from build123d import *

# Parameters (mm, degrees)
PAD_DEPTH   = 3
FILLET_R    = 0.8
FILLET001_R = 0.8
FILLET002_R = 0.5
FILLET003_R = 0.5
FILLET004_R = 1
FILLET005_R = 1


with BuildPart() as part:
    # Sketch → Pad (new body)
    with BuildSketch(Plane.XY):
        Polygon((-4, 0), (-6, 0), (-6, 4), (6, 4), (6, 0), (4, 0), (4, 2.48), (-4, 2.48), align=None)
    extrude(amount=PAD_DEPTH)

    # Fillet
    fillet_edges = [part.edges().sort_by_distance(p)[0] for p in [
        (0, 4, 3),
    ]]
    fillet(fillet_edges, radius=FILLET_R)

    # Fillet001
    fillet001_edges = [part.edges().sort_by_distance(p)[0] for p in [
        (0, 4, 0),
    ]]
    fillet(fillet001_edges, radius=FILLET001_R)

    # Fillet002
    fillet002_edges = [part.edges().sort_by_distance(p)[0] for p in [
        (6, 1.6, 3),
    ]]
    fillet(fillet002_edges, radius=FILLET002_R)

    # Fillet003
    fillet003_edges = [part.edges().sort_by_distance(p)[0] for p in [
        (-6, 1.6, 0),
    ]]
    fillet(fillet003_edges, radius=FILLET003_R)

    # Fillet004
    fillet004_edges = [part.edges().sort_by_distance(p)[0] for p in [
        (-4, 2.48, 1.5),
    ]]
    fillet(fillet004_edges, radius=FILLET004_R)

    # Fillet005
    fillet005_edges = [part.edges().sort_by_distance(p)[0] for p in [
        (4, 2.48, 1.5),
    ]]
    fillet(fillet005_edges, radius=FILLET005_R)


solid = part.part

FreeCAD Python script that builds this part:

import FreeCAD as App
import Part
import Sketcher

V = App.Vector


def edges_at(feature, points):
    """Names of the edges that pass closest to the given points."""
    edges = feature.Shape.Edges
    near = lambda p: min(range(len(edges)), key=lambda i: edges[i].distToShape(Part.Vertex(*p))[0])
    return sorted({f"Edge{near(p) + 1}" for p in points})


def add_polygon(sketch, points):
    """Adds a closed chain of lines whose ends are joined by coincident constraints."""
    first, n = sketch.GeometryCount, len(points)
    for a, b in zip(points, points[1:] + points[:1]):
        sketch.addGeometry(Part.LineSegment(App.Vector(*a, 0), App.Vector(*b, 0)), False)
    for i in range(n):
        sketch.addConstraint(Sketcher.Constraint("Coincident", first + i, 2, first + (i + 1) % n, 1))

doc = App.newDocument("Part")
params = doc.addObject("Spreadsheet::Sheet", "Params")
for row, (alias, value) in enumerate([
    ("sketch1_width", "2 mm"),
    ("sketch1_width2", "8 mm"),
    ("sketch1_height", "4 mm"),
    ("sketch1_height2", "2.48 mm"),
    ("pad1_length", "3 mm"),
    ("fillet_radius", "0.8 mm"),
    ("fillet2_radius", "0.8 mm"),
    ("fillet3_radius", "0.5 mm"),
    ("fillet4_radius", "0.5 mm"),
    ("fillet5_radius", "1 mm"),
    ("fillet6_radius", "1 mm"),
], start=1):
    params.set(f"A{row}", alias)
    params.set(f"B{row}", "=" + value)
    params.setAlias(f"B{row}", alias)

body = doc.addObject("PartDesign::Body", "Body")

# Sketch on XY plane
sketch1 = body.newObject("Sketcher::SketchObject", "Sketch")
sketch1.AttachmentSupport = (doc.getObject("XY_Plane"), [""])
sketch1.MapMode = "FlatFace"
add_polygon(sketch1, [(-6, 0), (-4, 0), (-4, 2.5), (4, 2.5), (4, 0), (6, 0), (6, 4), (-6, 4)])  # lines 0-7
sketch1.addConstraint([
    Sketcher.Constraint("Horizontal", 0),
    Sketcher.Constraint("Vertical", 1),
    Sketcher.Constraint("Horizontal", 2),
    Sketcher.Constraint("Vertical", 3),
    Sketcher.Constraint("Horizontal", 4),
    Sketcher.Constraint("Vertical", 5),
    Sketcher.Constraint("Horizontal", 6),
    Sketcher.Constraint("Vertical", 7),
    Sketcher.Constraint("Symmetric", 0, 2, 3, 2, -1, 1),
    Sketcher.Constraint("Symmetric", 4, 2, 7, 2, -2),
    Sketcher.Constraint("DistanceX", 0, 1, 0, 2, 2.0),
    Sketcher.Constraint("DistanceX", 2, 1, 2, 2, 8.0),
    Sketcher.Constraint("DistanceY", 5, 1, 5, 2, 4.0),
    Sketcher.Constraint("DistanceY", 1, 1, 1, 2, 2.48),
])
sketch1.setExpression("Constraints[18]", "Params.sketch1_width")
sketch1.setExpression("Constraints[19]", "Params.sketch1_width2")
sketch1.setExpression("Constraints[20]", "Params.sketch1_height")
sketch1.setExpression("Constraints[21]", "Params.sketch1_height2")
pad1 = body.newObject("PartDesign::Pad", "Pad")
pad1.Profile = sketch1
pad1.setExpression("Length", "Params.pad1_length")
doc.recompute()

fillet = body.newObject("PartDesign::Fillet", "Fillet")
fillet.Base = (pad1, edges_at(pad1, [(0, 4, 3)]))
fillet.setExpression("Radius", "Params.fillet_radius")
doc.recompute()

fillet2 = body.newObject("PartDesign::Fillet", "Fillet001")
fillet2.Base = (fillet, edges_at(fillet, [(0, 4, 0)]))
fillet2.setExpression("Radius", "Params.fillet2_radius")
doc.recompute()

fillet3 = body.newObject("PartDesign::Fillet", "Fillet002")
fillet3.Base = (fillet2, edges_at(fillet2, [(6, 1.6, 3)]))
fillet3.setExpression("Radius", "Params.fillet3_radius")
doc.recompute()

fillet4 = body.newObject("PartDesign::Fillet", "Fillet003")
fillet4.Base = (fillet3, edges_at(fillet3, [(-6, 1.6, 0)]))
fillet4.setExpression("Radius", "Params.fillet4_radius")
doc.recompute()

fillet5 = body.newObject("PartDesign::Fillet", "Fillet004")
fillet5.Base = (fillet4, edges_at(fillet4, [(-4, 2.48, 1.5)]))
fillet5.setExpression("Radius", "Params.fillet5_radius")
doc.recompute()

fillet6 = body.newObject("PartDesign::Fillet", "Fillet005")
fillet6.Base = (fillet5, edges_at(fillet5, [(4, 2.48, 1.5)]))
fillet6.setExpression("Radius", "Params.fillet6_radius")

doc.recompute()
